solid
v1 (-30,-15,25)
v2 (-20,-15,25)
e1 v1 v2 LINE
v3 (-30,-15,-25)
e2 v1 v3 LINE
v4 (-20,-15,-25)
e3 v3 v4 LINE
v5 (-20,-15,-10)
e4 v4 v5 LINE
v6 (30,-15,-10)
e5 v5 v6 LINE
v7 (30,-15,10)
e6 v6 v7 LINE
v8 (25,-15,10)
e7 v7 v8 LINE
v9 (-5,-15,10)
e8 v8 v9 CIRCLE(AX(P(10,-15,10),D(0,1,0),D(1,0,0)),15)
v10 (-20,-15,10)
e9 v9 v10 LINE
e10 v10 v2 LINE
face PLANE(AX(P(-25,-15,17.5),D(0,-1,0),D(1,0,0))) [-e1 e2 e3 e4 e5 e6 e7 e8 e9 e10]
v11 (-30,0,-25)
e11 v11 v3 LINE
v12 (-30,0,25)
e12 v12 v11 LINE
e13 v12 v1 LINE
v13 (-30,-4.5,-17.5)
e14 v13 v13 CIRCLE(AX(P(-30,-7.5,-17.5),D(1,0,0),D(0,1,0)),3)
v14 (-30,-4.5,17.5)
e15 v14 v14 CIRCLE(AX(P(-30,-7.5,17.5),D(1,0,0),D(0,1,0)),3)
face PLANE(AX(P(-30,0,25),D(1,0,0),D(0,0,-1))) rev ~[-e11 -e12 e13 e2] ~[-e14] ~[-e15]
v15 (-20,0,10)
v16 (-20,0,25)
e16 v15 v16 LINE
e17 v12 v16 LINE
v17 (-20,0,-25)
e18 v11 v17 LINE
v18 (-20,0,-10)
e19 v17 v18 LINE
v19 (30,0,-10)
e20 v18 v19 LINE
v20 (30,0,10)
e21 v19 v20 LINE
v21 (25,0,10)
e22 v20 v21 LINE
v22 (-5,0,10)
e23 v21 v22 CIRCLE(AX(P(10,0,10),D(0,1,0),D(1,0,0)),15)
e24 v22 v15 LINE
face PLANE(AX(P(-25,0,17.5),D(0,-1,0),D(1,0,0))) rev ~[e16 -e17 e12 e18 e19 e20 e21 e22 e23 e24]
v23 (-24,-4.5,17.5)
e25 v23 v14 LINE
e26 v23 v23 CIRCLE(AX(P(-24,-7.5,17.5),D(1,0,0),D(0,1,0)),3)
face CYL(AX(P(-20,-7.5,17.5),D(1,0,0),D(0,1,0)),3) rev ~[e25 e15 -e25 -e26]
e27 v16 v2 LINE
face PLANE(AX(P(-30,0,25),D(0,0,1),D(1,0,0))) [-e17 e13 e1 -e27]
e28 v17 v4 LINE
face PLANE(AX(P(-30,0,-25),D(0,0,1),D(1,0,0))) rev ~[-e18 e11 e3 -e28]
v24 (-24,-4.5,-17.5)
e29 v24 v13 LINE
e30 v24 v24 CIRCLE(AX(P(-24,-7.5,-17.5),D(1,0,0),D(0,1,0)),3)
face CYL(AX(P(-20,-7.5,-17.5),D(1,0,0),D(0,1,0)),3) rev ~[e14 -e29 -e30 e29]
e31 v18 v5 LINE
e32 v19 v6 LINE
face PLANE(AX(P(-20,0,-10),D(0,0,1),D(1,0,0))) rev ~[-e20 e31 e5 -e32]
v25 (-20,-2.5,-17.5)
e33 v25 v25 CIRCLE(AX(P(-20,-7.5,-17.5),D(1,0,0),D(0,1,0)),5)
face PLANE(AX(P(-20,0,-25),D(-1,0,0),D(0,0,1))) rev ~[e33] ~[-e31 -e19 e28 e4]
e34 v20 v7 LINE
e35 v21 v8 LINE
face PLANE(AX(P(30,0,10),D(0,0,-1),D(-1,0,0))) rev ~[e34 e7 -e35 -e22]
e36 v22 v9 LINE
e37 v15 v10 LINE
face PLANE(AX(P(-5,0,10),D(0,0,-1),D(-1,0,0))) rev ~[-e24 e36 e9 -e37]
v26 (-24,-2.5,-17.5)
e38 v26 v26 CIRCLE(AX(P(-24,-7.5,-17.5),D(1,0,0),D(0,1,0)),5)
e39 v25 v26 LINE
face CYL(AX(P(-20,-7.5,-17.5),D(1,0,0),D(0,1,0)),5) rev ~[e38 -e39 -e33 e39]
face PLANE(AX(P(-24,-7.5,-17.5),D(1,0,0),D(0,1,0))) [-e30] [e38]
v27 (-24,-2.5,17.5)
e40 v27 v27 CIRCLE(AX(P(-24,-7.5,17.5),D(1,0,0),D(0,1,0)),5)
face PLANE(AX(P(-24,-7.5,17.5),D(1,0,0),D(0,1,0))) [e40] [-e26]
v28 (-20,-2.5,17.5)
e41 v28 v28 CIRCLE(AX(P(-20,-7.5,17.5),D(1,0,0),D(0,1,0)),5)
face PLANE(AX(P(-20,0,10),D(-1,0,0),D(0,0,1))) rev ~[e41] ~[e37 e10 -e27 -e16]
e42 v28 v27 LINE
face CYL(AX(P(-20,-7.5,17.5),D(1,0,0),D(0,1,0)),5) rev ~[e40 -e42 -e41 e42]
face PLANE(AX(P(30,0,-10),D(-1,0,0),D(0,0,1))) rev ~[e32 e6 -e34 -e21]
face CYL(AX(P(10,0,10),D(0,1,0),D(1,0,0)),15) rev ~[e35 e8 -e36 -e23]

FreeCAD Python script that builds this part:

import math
import FreeCAD as App
import Part
import Sketcher
from FreeCAD import Vector

doc = App.newDocument("Part")
body = doc.addObject("PartDesign::Body", "Body")

sketch1 = doc.addObject("Sketcher::SketchObject", "Sketch")
body.addObject(sketch1)
sketch1.AttachmentSupport = (doc.XZ_Plane, [""])
sketch1.MapMode = "FlatFace"
sketch1.addGeometry([
    Part.LineSegment(Vector(-30, 25, 0), Vector(-30, -25, 0)),
    Part.LineSegment(Vector(-30, -25, 0), Vector(-20, -25, 0)),
    Part.LineSegment(Vector(-20, -25, 0), Vector(-20, -10, 0)),
    Part.LineSegment(Vector(-20, -10, 0), Vector(30, -10, 0)),
    Part.LineSegment(Vector(30, -10, 0), Vector(30, 10, 0)),
    Part.LineSegment(Vector(30, 10, 0), Vector(25, 10, 0)),
    Part.ArcOfCircle(Part.Circle(Vector(10, 10, 0), Vector(0, 0, 1), 15), math.radians(180), math.radians(360)),
    Part.LineSegment(Vector(-5, 10, 0), Vector(-20, 10, 0)),
    Part.LineSegment(Vector(-20, 10, 0), Vector(-20, 25, 0)),
    Part.LineSegment(Vector(-20, 25, 0), Vector(-30, 25, 0)),
], False)
sketch1.addConstraint([
    Sketcher.Constraint("Coincident", 0, 2, 1, 1),
    Sketcher.Constraint("Coincident", 1, 2, 2, 1),
    Sketcher.Constraint("Coincident", 2, 2, 3, 1),
    Sketcher.Constraint("Coincident", 3, 2, 4, 1),
    Sketcher.Constraint("Coincident", 4, 2, 5, 1),
    Sketcher.Constraint("Coincident", 5, 2, 6, 2),
    Sketcher.Constraint("Coincident", 6, 1, 7, 1),
    Sketcher.Constraint("Coincident", 7, 2, 8, 1),
    Sketcher.Constraint("Coincident", 8, 2, 9, 1),
    Sketcher.Constraint("Coincident", 9, 2, 0, 1),
    Sketcher.Constraint("Vertical", 0),
    Sketcher.Constraint("Horizontal", 1),
    Sketcher.Constraint("Vertical", 2),
    Sketcher.Constraint("Horizontal", 3),
    Sketcher.Constraint("Vertical", 4),
    Sketcher.Constraint("Horizontal", 5),
    Sketcher.Constraint("Horizontal", 7),
    Sketcher.Constraint("Vertical", 8),
    Sketcher.Constraint("Horizontal", 9),
    Sketcher.Constraint("Symmetric", 2, 2, 7, 2, -1),
    Sketcher.Constraint("Horizontal", 6, 3, 4, 2),
    Sketcher.Constraint("Horizontal", 5, 2, 6, 1),
    Sketcher.Constraint("Equal", 3, 0),
    Sketcher.Constraint("Equal", 7, 2),
    Sketcher.Constraint("Equal", 2, 8),
    Sketcher.Constraint("Radius", 6, 15.0),
    Sketcher.Constraint("DistanceX", 1, 1, 1, 2, 10.0),
    Sketcher.Constraint("DistanceX", 3, 1, 3, 2, 50.0),
    Sketcher.Constraint("DistanceX", 5, 2, 5, 1, 5.0),
    Sketcher.Constraint("DistanceX", -1, 1, 6, 3, 10.0),
])
pad1 = doc.addObject("PartDesign::Pad", "Pad")
body.addObject(pad1)
pad1.Profile = sketch1
pad1.Length = 15

sketch2 = doc.addObject("Sketcher::SketchObject", "Sketch001")
body.addObject(sketch2)
sketch2.AttachmentSupport = (doc.YZ_Plane, [""])
sketch2.MapMode = "FlatFace"
sketch2.AttachmentOffset = App.Placement(Vector(0, 0, -20), App.Rotation())
sketch2.addGeometry(Part.Circle(Vector(-7.5, 17.5, 0), Vector(0, 0, 1), 3), False)
sketch2.addConstraint([
    Sketcher.Constraint("Diameter", 0, 6.0),
    Sketcher.Constraint("DistanceX", 0, 3, -1, 1, 7.5),
    Sketcher.Constraint("DistanceY", -1, 1, 0, 3, 17.5),
])
pocket1 = doc.addObject("PartDesign::Pocket", "Pocket")
body.addObject(pocket1)
pocket1.Profile = sketch2
pocket1.Type = "ThroughAll"

sketch3 = doc.addObject("Sketcher::SketchObject", "Sketch002")
body.addObject(sketch3)
sketch3.AttachmentSupport = (doc.YZ_Plane, [""])
sketch3.MapMode = "FlatFace"
sketch3.AttachmentOffset = App.Placement(Vector(0, 0, -20), App.Rotation())
sketch3.addGeometry([
    Part.Circle(Vector(-7.5, 17.5, 0), Vector(0, 0, 1), 5),
    Part.Circle(Vector(-7.5, 17.5, 0), Vector(0, 0, 1), 3),
], False)
sketch3.addConstraint([
    Sketcher.Constraint("Coincident", 1, 3, 0, 3),
    Sketcher.Constraint("Diameter", 0, 10.0),
    Sketcher.Constraint("Diameter", 1, 6.0),
    Sketcher.Constraint("DistanceX", 0, 3, -1, 1, 7.5),
    Sketcher.Constraint("DistanceY", -1, 1, 0, 3, 17.5),
])
pocket2 = doc.addObject("PartDesign::Pocket", "Pocket001")
body.addObject(pocket2)
pocket2.Profile = sketch3
pocket2.Length = 4

sketch4 = doc.addObject("Sketcher::SketchObject", "Sketch003")
body.addObject(sketch4)
sketch4.AttachmentSupport = (doc.YZ_Plane, [""])
sketch4.MapMode = "FlatFace"
sketch4.AttachmentOffset = App.Placement(Vector(0, 0, -20), App.Rotation())
sketch4.addGeometry(Part.Circle(Vector(-7.5, -17.5, 0), Vector(0, 0, 1), 3), False)
sketch4.addConstraint([
    Sketcher.Constraint("Diameter", 0, 6.0),
    Sketcher.Constraint("DistanceX", 0, 3, -1, 1, 7.5),
    Sketcher.Constraint("DistanceY", 0, 3, -1, 1, 17.5),
])
pocket3 = doc.addObject("PartDesign::Pocket", "Pocket002")
body.addObject(pocket3)
pocket3.Profile = sketch4
pocket3.Type = "ThroughAll"

sketch5 = doc.addObject("Sketcher::SketchObject", "Sketch004")
body.addObject(sketch5)
sketch5.AttachmentSupport = (doc.YZ_Plane, [""])
sketch5.MapMode = "FlatFace"
sketch5.AttachmentOffset = App.Placement(Vector(0, 0, -20), App.Rotation())
sketch5.addGeometry([
    Part.Circle(Vector(-7.5, -17.5, 0), Vector(0, 0, 1), 5),
    Part.Circle(Vector(-7.5, -17.5, 0), Vector(0, 0, 1), 3),
], False)
sketch5.addConstraint([
    Sketcher.Constraint("Coincident", 1, 3, 0, 3),
    Sketcher.Constraint("Diameter", 0, 10.0),
    Sketcher.Constraint("Diameter", 1, 6.0),
    Sketcher.Constraint("DistanceX", 0, 3, -1, 1, 7.5),
    Sketcher.Constraint("DistanceY", 0, 3, -1, 1, 17.5),
])
pocket4 = doc.addObject("PartDesign::Pocket", "Pocket003")
body.addObject(pocket4)
pocket4.Profile = sketch5
pocket4.Length = 4

doc.recompute()
